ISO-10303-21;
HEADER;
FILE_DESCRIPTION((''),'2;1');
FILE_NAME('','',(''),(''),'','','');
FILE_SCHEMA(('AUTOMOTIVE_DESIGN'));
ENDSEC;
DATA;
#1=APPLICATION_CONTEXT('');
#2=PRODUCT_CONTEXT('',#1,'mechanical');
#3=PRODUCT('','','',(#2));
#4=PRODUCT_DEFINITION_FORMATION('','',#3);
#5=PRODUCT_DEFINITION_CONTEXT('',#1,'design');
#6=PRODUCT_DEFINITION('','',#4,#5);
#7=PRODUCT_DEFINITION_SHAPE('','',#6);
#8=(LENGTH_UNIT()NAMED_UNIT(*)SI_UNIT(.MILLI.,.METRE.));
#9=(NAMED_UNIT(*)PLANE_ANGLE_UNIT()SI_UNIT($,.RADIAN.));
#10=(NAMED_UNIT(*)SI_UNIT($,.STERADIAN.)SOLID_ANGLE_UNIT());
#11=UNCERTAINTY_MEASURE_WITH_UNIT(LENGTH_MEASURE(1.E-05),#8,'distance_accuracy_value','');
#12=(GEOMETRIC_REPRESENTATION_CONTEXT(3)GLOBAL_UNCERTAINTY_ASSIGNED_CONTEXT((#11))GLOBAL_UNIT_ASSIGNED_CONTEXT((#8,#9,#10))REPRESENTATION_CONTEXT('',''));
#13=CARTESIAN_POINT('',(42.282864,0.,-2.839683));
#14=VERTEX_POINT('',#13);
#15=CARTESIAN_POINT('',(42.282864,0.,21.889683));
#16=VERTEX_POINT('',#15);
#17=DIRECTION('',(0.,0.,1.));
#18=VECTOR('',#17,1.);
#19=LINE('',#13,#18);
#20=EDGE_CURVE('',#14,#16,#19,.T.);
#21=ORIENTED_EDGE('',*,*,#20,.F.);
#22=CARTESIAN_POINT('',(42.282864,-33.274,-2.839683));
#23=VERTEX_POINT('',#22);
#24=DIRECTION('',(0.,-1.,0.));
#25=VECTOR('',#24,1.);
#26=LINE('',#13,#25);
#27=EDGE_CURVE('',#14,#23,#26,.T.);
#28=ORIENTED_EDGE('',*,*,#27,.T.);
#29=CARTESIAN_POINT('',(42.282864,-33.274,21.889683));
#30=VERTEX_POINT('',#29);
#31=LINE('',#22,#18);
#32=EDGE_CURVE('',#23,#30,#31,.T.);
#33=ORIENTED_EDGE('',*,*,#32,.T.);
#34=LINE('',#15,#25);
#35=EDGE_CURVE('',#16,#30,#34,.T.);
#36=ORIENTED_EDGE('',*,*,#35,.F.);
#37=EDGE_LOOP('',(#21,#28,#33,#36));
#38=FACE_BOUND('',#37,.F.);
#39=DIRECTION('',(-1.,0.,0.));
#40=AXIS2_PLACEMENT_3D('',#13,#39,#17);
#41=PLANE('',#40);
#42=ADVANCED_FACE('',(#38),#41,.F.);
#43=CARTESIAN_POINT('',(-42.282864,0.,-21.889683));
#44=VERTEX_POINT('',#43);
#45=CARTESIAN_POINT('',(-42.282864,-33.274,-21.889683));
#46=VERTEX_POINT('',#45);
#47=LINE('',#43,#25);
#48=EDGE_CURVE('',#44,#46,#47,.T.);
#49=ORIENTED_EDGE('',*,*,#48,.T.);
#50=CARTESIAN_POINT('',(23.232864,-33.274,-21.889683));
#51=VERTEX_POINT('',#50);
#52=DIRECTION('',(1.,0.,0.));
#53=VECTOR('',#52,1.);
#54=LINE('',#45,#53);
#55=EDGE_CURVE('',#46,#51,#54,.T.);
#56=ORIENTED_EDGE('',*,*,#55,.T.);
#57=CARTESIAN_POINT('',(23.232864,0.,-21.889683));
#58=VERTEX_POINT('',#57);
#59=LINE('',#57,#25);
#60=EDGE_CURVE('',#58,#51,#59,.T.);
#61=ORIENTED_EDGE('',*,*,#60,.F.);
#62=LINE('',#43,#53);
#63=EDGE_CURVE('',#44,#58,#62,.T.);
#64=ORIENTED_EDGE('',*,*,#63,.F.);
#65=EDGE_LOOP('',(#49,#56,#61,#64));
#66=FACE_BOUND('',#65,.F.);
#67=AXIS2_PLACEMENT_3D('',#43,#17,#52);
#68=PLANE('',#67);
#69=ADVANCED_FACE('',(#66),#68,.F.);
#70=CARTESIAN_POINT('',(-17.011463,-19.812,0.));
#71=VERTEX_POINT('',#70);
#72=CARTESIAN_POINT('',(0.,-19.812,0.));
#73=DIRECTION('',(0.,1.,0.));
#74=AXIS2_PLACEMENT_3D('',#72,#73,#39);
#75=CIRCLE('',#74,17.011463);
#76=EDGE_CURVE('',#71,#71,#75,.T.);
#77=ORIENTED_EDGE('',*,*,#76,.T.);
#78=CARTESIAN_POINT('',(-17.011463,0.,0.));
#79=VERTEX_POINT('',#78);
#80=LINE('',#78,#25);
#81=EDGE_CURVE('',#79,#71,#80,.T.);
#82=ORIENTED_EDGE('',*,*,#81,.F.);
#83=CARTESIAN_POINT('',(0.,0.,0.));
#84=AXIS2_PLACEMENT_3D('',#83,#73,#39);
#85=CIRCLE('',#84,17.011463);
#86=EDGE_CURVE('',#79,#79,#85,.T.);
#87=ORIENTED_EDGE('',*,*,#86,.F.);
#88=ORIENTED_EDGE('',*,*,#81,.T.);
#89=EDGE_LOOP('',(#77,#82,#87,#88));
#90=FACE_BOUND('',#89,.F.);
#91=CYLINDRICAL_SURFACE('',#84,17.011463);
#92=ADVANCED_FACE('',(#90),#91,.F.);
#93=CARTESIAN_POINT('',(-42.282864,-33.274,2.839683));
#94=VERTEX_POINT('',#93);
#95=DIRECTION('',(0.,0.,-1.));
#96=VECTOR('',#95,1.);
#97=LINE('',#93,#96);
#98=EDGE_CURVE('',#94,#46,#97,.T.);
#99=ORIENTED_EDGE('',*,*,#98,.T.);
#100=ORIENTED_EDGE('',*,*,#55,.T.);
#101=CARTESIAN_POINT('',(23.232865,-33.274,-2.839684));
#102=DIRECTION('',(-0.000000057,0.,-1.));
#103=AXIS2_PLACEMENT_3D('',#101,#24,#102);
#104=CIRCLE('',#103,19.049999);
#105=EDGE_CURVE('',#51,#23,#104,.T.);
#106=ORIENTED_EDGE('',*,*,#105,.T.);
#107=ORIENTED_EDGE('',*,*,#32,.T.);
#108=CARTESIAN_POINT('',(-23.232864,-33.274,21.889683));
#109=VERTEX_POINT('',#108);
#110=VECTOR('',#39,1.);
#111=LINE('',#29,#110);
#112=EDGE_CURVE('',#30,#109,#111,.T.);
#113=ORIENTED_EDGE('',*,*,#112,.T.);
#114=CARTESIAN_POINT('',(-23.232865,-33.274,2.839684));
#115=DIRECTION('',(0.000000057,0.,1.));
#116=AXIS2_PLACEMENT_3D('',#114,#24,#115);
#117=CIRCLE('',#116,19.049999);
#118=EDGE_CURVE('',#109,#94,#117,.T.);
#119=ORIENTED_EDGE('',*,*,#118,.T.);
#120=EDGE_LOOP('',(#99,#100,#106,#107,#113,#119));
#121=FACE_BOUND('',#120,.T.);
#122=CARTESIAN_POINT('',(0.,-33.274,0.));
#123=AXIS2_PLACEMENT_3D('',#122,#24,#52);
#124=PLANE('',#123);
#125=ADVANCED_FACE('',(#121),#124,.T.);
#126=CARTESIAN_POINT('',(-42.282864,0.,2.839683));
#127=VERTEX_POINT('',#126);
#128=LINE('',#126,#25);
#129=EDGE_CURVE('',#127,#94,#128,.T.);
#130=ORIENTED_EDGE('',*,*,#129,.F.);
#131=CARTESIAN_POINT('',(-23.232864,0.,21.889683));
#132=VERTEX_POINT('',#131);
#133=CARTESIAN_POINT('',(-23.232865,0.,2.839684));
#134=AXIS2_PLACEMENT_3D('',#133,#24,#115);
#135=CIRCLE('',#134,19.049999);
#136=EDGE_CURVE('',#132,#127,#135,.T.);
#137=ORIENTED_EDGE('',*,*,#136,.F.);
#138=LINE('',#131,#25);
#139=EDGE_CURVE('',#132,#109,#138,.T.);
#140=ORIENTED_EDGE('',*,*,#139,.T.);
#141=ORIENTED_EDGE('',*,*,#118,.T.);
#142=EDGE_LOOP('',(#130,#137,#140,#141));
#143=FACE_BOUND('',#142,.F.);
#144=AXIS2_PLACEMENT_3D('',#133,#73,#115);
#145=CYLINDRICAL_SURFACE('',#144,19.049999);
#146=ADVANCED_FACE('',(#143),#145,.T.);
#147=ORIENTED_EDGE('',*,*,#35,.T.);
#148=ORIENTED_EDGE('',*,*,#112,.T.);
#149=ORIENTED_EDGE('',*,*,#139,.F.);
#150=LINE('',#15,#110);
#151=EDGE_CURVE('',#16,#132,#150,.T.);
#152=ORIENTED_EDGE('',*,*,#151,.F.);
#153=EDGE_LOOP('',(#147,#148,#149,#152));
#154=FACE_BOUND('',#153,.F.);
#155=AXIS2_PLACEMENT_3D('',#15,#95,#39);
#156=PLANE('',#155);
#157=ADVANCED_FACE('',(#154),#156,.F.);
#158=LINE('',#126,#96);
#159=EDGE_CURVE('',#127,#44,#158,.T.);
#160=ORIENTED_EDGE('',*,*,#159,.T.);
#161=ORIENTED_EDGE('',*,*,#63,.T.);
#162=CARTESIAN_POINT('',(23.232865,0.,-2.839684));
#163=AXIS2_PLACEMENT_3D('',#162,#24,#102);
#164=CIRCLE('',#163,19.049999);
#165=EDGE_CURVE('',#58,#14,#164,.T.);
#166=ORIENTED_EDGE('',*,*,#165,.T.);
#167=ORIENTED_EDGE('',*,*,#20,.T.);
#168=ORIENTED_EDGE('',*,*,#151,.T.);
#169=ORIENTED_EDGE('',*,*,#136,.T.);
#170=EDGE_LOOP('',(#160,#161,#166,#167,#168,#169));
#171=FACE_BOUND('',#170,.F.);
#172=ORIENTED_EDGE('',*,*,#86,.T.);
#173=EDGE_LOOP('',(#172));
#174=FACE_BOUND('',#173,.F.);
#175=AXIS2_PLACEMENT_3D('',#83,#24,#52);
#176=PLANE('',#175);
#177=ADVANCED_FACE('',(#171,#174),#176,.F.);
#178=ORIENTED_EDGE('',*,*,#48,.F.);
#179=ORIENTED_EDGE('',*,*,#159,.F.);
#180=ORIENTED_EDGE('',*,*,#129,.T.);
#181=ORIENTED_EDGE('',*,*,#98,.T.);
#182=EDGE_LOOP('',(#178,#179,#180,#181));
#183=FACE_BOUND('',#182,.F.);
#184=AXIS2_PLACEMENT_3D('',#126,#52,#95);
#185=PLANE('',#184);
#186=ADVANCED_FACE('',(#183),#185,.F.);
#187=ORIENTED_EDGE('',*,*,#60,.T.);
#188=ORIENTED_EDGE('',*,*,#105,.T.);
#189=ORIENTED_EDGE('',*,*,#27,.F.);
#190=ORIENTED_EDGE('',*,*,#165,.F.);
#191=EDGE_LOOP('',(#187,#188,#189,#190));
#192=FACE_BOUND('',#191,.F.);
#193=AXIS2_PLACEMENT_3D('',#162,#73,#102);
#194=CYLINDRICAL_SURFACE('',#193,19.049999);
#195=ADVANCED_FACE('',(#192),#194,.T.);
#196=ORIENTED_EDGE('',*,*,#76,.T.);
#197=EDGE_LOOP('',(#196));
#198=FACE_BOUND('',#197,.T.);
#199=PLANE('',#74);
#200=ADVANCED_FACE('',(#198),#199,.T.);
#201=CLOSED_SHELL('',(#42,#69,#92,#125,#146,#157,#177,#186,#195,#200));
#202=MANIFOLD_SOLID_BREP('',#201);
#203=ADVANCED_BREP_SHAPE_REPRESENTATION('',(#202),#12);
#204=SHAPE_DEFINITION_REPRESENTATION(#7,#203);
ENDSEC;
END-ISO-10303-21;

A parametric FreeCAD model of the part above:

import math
import FreeCAD as App
import Part
import Sketcher
from FreeCAD import Vector
Q = App.Units.Quantity

doc = App.newDocument("Part")
body = doc.addObject("PartDesign::Body", "Body")

# Sketch on XZ plane
sketch1 = body.newObject("Sketcher::SketchObject", "Sketch")
sketch1.AttachmentSupport = (doc.getObject("XZ_Plane"), [""])
sketch1.MapMode = "FlatFace"
sketch1.addGeometry([
    Part.LineSegment(Vector(-42, 3, 0), Vector(-42, -22, 0)),  # 0
    Part.LineSegment(Vector(-42, -22, 0), Vector(23, -22, 0)),  # 1
    Part.ArcOfCircle(Part.Circle(Vector(23, -3, 0), Vector(0, 0, 1), 19), math.radians(-90), math.radians(0)),  # 2
    Part.LineSegment(Vector(42, -3, 0), Vector(42, 22, 0)),  # 3
    Part.LineSegment(Vector(42, 22, 0), Vector(-23, 22, 0)),  # 4
    Part.ArcOfCircle(Part.Circle(Vector(-23, 3, 0), Vector(0, 0, 1), 19), math.radians(90), math.radians(180)),  # 5
], False)
sketch1.addConstraint([
    Sketcher.Constraint("Coincident", 0, 2, 1, 1),
    Sketcher.Constraint("Tangent", 1, 2, 2, 1),
    Sketcher.Constraint("Tangent", 2, 2, 3, 1),
    Sketcher.Constraint("Coincident", 3, 2, 4, 1),
    Sketcher.Constraint("Tangent", 4, 2, 5, 1),
    Sketcher.Constraint("Tangent", 5, 2, 0, 1),
    Sketcher.Constraint("Vertical", 0),
    Sketcher.Constraint("Horizontal", 1),
    Sketcher.Constraint("Vertical", 3),
    Sketcher.Constraint("Horizontal", 4),
    Sketcher.Constraint("Equal", 2, 5),
    Sketcher.Constraint("Symmetric", 2, 3, 5, 3, -1, 1),
    Sketcher.Constraint("Radius", 2, Q("0.75 in")),
    Sketcher.Constraint("DistanceX", 1, 1, 1, 2, Q("65.515728 mm")),
    Sketcher.Constraint("DistanceY", 0, 2, 0, 1, Q("24.729366 mm")),
])
pad1 = body.newObject("PartDesign::Pad", "Pad")
pad1.Profile = sketch1
pad1.Length = Q("1.31 in")

# Sketch on XZ plane
sketch2 = body.newObject("Sketcher::SketchObject", "Sketch001")
sketch2.AttachmentSupport = (doc.getObject("XZ_Plane"), [""])
sketch2.MapMode = "FlatFace"
sketch2.addGeometry(Part.Circle(Vector(0, 0, 0), Vector(0, 0, 1), 17), False)
sketch2.addConstraint([
    Sketcher.Constraint("Coincident", 0, 3, -1, 1),
    Sketcher.Constraint("Diameter", 0, Q("34.022926 mm")),
])
pocket1 = body.newObject("PartDesign::Pocket", "Pocket")
pocket1.Profile = sketch2
pocket1.Length = Q("0.78 in")
pocket1.Reversed = True

doc.recompute()
